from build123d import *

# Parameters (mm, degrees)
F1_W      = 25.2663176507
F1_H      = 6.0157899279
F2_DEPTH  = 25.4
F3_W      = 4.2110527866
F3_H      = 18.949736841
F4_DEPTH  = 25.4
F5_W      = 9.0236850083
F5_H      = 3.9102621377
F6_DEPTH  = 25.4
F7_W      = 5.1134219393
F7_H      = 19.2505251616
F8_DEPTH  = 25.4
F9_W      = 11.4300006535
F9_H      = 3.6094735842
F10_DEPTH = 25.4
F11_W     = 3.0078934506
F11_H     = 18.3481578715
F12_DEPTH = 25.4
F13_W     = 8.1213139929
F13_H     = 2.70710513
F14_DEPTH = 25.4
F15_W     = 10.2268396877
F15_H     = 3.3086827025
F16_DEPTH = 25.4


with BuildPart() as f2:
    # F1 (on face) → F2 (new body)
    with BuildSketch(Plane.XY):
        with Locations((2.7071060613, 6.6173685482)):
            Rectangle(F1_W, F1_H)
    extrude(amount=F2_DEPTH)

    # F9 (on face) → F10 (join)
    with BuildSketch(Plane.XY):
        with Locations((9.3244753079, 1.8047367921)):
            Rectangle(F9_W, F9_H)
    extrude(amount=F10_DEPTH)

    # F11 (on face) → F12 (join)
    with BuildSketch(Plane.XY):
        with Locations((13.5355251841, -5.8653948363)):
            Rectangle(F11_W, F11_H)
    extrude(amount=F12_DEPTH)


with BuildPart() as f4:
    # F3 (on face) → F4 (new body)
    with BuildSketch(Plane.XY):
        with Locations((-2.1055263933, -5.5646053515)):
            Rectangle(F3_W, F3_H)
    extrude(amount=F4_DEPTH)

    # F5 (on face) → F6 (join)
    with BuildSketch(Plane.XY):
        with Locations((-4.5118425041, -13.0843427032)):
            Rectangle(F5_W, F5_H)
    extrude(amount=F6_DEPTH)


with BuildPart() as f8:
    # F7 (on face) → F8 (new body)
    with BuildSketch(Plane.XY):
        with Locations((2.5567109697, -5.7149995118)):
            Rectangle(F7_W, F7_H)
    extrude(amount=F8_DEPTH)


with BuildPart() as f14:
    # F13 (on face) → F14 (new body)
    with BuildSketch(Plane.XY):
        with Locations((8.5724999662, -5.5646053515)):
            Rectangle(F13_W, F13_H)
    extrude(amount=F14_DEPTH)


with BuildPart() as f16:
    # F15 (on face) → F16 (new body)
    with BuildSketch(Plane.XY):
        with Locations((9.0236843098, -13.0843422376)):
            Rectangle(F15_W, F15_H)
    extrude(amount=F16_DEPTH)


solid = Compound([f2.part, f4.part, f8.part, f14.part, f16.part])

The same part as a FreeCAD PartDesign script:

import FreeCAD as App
import Part
import Sketcher
Q = App.Units.Quantity


def add_polygon(sketch, points):
    """Adds a closed chain of lines whose ends are joined by coincident constraints."""
    first, n = sketch.GeometryCount, len(points)
    for a, b in zip(points, points[1:] + points[:1]):
        sketch.addGeometry(Part.LineSegment(App.Vector(*a, 0), App.Vector(*b, 0)), False)
    for i in range(n):
        sketch.addConstraint(Sketcher.Constraint("Coincident", first + i, 2, first + (i + 1) % n, 1))

doc = App.newDocument("Part")
body = doc.addObject("PartDesign::Body", "Body")

# Sketch on XY plane
sketch1 = body.newObject("Sketcher::SketchObject", "Sketch")
sketch1.AttachmentSupport = (doc.getObject("XY_Plane"), [""])
sketch1.MapMode = "FlatFace"
add_polygon(sketch1, [(-9.926053, 9.625264), (-9.926053, 3.609474), (15.340265, 3.609474), (15.340265, 9.625264)])  # lines 0-3
sketch1.addConstraint(Sketcher.Constraint("Vertical", 0))
sketch1.addConstraint(Sketcher.Constraint("Horizontal", 1))
sketch1.addConstraint(Sketcher.Constraint("Vertical", 2))
sketch1.addConstraint(Sketcher.Constraint("Horizontal", 3))
sketch1.addConstraint(Sketcher.Constraint("DistanceY", 0, 2, 0, 1, Q("6.01579 mm")))
sketch1.addConstraint(Sketcher.Constraint("DistanceX", 1, 1, 1, 2, Q("25.266318 mm")))
sketch1.addConstraint(Sketcher.Constraint("DistanceX", 0, 2, -1, 1, Q("9.926053 mm")))
sketch1.addConstraint(Sketcher.Constraint("DistanceY", -1, 1, 0, 2, Q("3.609474 mm")))
pad1 = body.newObject("PartDesign::Pad", "Pad")
pad1.Profile = sketch1
pad1.Length = Q("1 in")

# Sketch on XY plane
sketch2 = body.newObject("Sketcher::SketchObject", "Sketch001")
sketch2.AttachmentSupport = (doc.getObject("XY_Plane"), [""])
sketch2.MapMode = "FlatFace"
add_polygon(sketch2, [(3.609475, 3.609474), (3.609475, 0), (15.039476, 0), (15.039476, 3.609474)])  # lines 0-3
sketch2.addConstraint(Sketcher.Constraint("Vertical", 0))
sketch2.addConstraint(Sketcher.Constraint("Horizontal", 1))
sketch2.addConstraint(Sketcher.Constraint("Vertical", 2))
sketch2.addConstraint(Sketcher.Constraint("Horizontal", 3))
sketch2.addConstraint(Sketcher.Constraint("PointOnObject", 0, 2, -1))
sketch2.addConstraint(Sketcher.Constraint("DistanceX", 1, 1, 1, 2, Q("0.45 in")))
sketch2.addConstraint(Sketcher.Constraint("DistanceY", 0, 2, 0, 1, Q("3.609474 mm")))
sketch2.addConstraint(Sketcher.Constraint("DistanceX", -1, 1, 0, 2, Q("3.609475 mm")))
pad2 = body.newObject("PartDesign::Pad", "Pad001")
pad2.Profile = sketch2
pad2.Length = Q("1 in")

# Sketch on XY plane
sketch3 = body.newObject("Sketcher::SketchObject", "Sketch002")
sketch3.AttachmentSupport = (doc.getObject("XY_Plane"), [""])
sketch3.MapMode = "FlatFace"
add_polygon(sketch3, [(12.031578, 3.308684), (12.031578, -15.039474), (15.039472, -15.039474), (15.039472, 3.308684)])  # lines 0-3
sketch3.addConstraint(Sketcher.Constraint("Vertical", 0))
sketch3.addConstraint(Sketcher.Constraint("Horizontal", 1))
sketch3.addConstraint(Sketcher.Constraint("Vertical", 2))
sketch3.addConstraint(Sketcher.Constraint("Horizontal", 3))
sketch3.addConstraint(Sketcher.Constraint("DistanceX", 1, 1, 1, 2, Q("3.007893 mm")))
sketch3.addConstraint(Sketcher.Constraint("DistanceY", 0, 2, 0, 1, Q("18.348158 mm")))
sketch3.addConstraint(Sketcher.Constraint("DistanceX", -1, 1, 0, 2, Q("12.031578 mm")))
sketch3.addConstraint(Sketcher.Constraint("DistanceY", 0, 2, -1, 1, Q("15.039474 mm")))
pad3 = body.newObject("PartDesign::Pad", "Pad002")
pad3.Profile = sketch3
pad3.Length = Q("1 in")
body2 = doc.addObject("PartDesign::Body", "Body001")

# Sketch on XY plane
sketch4 = body2.newObject("Sketcher::SketchObject", "Sketch003")
sketch4.AttachmentSupport = (doc.getObject("XY_Plane001"), [""])
sketch4.MapMode = "FlatFace"
add_polygon(sketch4, [(-4.211053, 3.910263), (-4.211053, -15.039474), (0, -15.039474), (0, 3.910263)])  # lines 0-3
sketch4.addConstraint(Sketcher.Constraint("Vertical", 0))
sketch4.addConstraint(Sketcher.Constraint("Horizontal", 1))
sketch4.addConstraint(Sketcher.Constraint("Vertical", 2))
sketch4.addConstraint(Sketcher.Constraint("Horizontal", 3))
sketch4.addConstraint(Sketcher.Constraint("PointOnObject", 1, 2, -2))
sketch4.addConstraint(Sketcher.Constraint("DistanceX", 1, 1, 1, 2, Q("4.211053 mm")))
sketch4.addConstraint(Sketcher.Constraint("DistanceY", 0, 2, 0, 1, Q("18.949737 mm")))
sketch4.addConstraint(Sketcher.Constraint("DistanceY", 0, 2, -1, 1, Q("15.039474 mm")))
pad4 = body2.newObject("PartDesign::Pad", "Pad003")
pad4.Profile = sketch4
pad4.Length = Q("1 in")

# Sketch on XY plane
sketch5 = body2.newObject("Sketcher::SketchObject", "Sketch004")
sketch5.AttachmentSupport = (doc.getObject("XY_Plane001"), [""])
sketch5.MapMode = "FlatFace"
add_polygon(sketch5, [(-9.023685, -11.129212), (-9.023685, -15.039474), (0, -15.039474), (0, -11.129212)])  # lines 0-3
sketch5.addConstraint(Sketcher.Constraint("Vertical", 0))
sketch5.addConstraint(Sketcher.Constraint("Horizontal", 1))
sketch5.addConstraint(Sketcher.Constraint("Vertical", 2))
sketch5.addConstraint(Sketcher.Constraint("Horizontal", 3))
sketch5.addConstraint(Sketcher.Constraint("PointOnObject", 1, 2, -2))
sketch5.addConstraint(Sketcher.Constraint("DistanceX", 1, 1, 1, 2, Q("9.023685 mm")))
sketch5.addConstraint(Sketcher.Constraint("DistanceY", 0, 2, 0, 1, Q("3.910262 mm")))
sketch5.addConstraint(Sketcher.Constraint("DistanceY", 2, 2, -1, 1, Q("11.129212 mm")))
pad5 = body2.newObject("PartDesign::Pad", "Pad004")
pad5.Profile = sketch5
pad5.Length = Q("1 in")
body3 = doc.addObject("PartDesign::Body", "Body002")

# Sketch on XY plane
sketch6 = body3.newObject("Sketcher::SketchObject", "Sketch005")
sketch6.AttachmentSupport = (doc.getObject("XY_Plane002"), [""])
sketch6.MapMode = "FlatFace"
add_polygon(sketch6, [(0, 3.910263), (0, -15.340262), (5.113422, -15.340262), (5.113422, 3.910263)])  # lines 0-3
sketch6.addConstraint(Sketcher.Constraint("Vertical", 0))
sketch6.addConstraint(Sketcher.Constraint("Horizontal", 1))
sketch6.addConstraint(Sketcher.Constraint("Vertical", 2))
sketch6.addConstraint(Sketcher.Constraint("Horizontal", 3))
sketch6.addConstraint(Sketcher.Constraint("PointOnObject", 0, 2, -2))
sketch6.addConstraint(Sketcher.Constraint("DistanceX", 1, 1, 1, 2, Q("5.113422 mm")))
sketch6.addConstraint(Sketcher.Constraint("DistanceY", 0, 2, 0, 1, Q("19.250525 mm")))
sketch6.addConstraint(Sketcher.Constraint("DistanceY", 0, 2, -1, 1, Q("15.340262 mm")))
pad6 = body3.newObject("PartDesign::Pad", "Pad005")
pad6.Profile = sketch6
pad6.Length = Q("1 in")
body4 = doc.addObject("PartDesign::Body", "Body003")

# Sketch on XY plane
sketch7 = body4.newObject("Sketcher::SketchObject", "Sketch006")
sketch7.AttachmentSupport = (doc.getObject("XY_Plane003"), [""])
sketch7.MapMode = "FlatFace"
add_polygon(sketch7, [(4.511843, -4.211053), (4.511843, -6.918158), (12.633157, -6.918158), (12.633157, -4.211053)])  # lines 0-3
sketch7.addConstraint(Sketcher.Constraint("Vertical", 0))
sketch7.addConstraint(Sketcher.Constraint("Horizontal", 1))
sketch7.addConstraint(Sketcher.Constraint("Vertical", 2))
sketch7.addConstraint(Sketcher.Constraint("Horizontal", 3))
sketch7.addConstraint(Sketcher.Constraint("DistanceX", 1, 1, 1, 2, Q("8.121314 mm")))
sketch7.addConstraint(Sketcher.Constraint("DistanceY", 0, 2, 0, 1, Q("2.707105 mm")))
sketch7.addConstraint(Sketcher.Constraint("DistanceX", -1, 1, 0, 2, Q("4.511843 mm")))
sketch7.addConstraint(Sketcher.Constraint("DistanceY", 0, 2, -1, 1, Q("6.918158 mm")))
pad7 = body4.newObject("PartDesign::Pad", "Pad006")
pad7.Profile = sketch7
pad7.Length = Q("1 in")
body5 = doc.addObject("PartDesign::Body", "Body004")

# Sketch on XY plane
sketch8 = body5.newObject("Sketcher::SketchObject", "Sketch007")
sketch8.AttachmentSupport = (doc.getObject("XY_Plane004"), [""])
sketch8.MapMode = "FlatFace"
add_polygon(sketch8, [(3.910264, -11.430001), (3.910264, -14.738684), (14.137104, -14.738684), (14.137104, -11.430001)])  # lines 0-3
sketch8.addConstraint(Sketcher.Constraint("Vertical", 0))
sketch8.addConstraint(Sketcher.Constraint("Horizontal", 1))
sketch8.addConstraint(Sketcher.Constraint("Vertical", 2))
sketch8.addConstraint(Sketcher.Constraint("Horizontal", 3))
sketch8.addConstraint(Sketcher.Constraint("DistanceY", 2, 2, -1, 1, Q("0.45 in")))
sketch8.addConstraint(Sketcher.Constraint("DistanceX", 1, 1, 1, 2, Q("10.22684 mm")))
sketch8.addConstraint(Sketcher.Constraint("DistanceY", 0, 2, 0, 1, Q("3.308683 mm")))
sketch8.addConstraint(Sketcher.Constraint("DistanceX", -1, 1, 0, 2, Q("3.910264 mm")))
pad8 = body5.newObject("PartDesign::Pad", "Pad007")
pad8.Profile = sketch8
pad8.Length = Q("1 in")

doc.recompute()
